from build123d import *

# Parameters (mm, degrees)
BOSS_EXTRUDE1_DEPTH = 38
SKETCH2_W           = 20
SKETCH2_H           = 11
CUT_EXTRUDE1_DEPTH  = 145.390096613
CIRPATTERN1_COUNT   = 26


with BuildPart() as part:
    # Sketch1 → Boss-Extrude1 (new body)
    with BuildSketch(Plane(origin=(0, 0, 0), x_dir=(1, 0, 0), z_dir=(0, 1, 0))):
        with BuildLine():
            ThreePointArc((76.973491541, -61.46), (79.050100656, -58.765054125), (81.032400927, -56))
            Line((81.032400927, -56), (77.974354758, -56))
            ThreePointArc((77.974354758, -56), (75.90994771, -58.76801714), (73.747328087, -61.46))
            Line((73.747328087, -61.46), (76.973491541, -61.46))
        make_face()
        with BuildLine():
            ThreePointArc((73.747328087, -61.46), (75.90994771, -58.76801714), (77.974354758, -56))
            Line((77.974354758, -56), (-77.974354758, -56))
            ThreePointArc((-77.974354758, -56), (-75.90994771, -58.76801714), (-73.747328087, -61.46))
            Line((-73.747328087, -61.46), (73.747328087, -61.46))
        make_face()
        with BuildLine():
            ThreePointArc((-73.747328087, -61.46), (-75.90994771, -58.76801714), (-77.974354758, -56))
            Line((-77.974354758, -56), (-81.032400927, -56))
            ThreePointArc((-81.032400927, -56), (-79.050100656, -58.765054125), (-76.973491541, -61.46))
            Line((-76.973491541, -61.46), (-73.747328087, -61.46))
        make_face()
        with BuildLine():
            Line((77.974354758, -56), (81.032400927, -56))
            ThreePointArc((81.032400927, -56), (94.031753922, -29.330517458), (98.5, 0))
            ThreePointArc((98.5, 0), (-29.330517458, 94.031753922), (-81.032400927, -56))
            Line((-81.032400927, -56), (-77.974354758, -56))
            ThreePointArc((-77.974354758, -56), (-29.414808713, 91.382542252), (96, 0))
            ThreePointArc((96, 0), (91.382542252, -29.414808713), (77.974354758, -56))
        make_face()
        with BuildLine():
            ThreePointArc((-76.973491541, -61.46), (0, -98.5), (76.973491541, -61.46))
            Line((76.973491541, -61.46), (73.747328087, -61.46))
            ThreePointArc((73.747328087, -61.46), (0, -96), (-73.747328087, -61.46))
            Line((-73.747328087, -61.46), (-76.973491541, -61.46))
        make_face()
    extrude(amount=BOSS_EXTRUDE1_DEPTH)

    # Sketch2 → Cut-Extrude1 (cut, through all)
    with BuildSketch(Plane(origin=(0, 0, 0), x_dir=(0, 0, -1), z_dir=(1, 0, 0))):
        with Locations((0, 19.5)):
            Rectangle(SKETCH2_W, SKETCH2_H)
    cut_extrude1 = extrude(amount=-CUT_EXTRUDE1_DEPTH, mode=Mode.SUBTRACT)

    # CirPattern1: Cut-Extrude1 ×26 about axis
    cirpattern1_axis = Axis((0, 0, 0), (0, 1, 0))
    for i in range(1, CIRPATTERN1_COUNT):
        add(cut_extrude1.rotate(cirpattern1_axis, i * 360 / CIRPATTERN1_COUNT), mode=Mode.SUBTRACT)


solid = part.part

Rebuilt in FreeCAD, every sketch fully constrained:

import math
import FreeCAD as App
import Part
import Sketcher


def add_polygon(sketch, points):
    """Adds a closed chain of lines whose ends are joined by coincident constraints."""
    first, n = sketch.GeometryCount, len(points)
    for a, b in zip(points, points[1:] + points[:1]):
        sketch.addGeometry(Part.LineSegment(App.Vector(*a, 0), App.Vector(*b, 0)), False)
    for i in range(n):
        sketch.addConstraint(Sketcher.Constraint("Coincident", first + i, 2, first + (i + 1) % n, 1))

doc = App.newDocument("Part")
params = doc.addObject("Spreadsheet::Sheet", "Params")
for row, (alias, value) in enumerate([
    ("sketch1_radius", "96 mm"),
    ("sketch1_radius2", "98.5 mm"),
    ("pad1_length", "38 mm"),
    ("sketch2_width", "11 mm"),
    ("sketch2_height", "20 mm"),
], start=1):
    params.set(f"A{row}", alias)
    params.set(f"B{row}", "=" + value)
    params.setAlias(f"B{row}", alias)

body = doc.addObject("PartDesign::Body", "Body")

sketch1 = body.newObject("Sketcher::SketchObject", "Sketch")
sketch1.AttachmentSupport = (doc.getObject("XZ_Plane"), [""])
sketch1.MapMode = "FlatFace"
sketch1.addGeometry([
    Part.ArcOfCircle(Part.Circle(App.Vector(0, 0, 0), App.Vector(0, 0, 1), 98), math.radians(34.65), math.radians(38.61)),
    Part.ArcOfCircle(Part.Circle(App.Vector(0, 0, 0), App.Vector(0, 0, 1), 98), math.radians(0), math.radians(35)),
    Part.ArcOfCircle(Part.Circle(App.Vector(0, 0, 0), App.Vector(0, 0, 1), 98), math.radians(145), math.radians(360)),
    Part.ArcOfCircle(Part.Circle(App.Vector(0, 0, 0), App.Vector(0, 0, 1), 98), math.radians(141.39), math.radians(145.35)),
    Part.ArcOfCircle(Part.Circle(App.Vector(0, 0, 0), App.Vector(0, 0, 1), 98), math.radians(39), math.radians(141)),
    Part.LineSegment(App.Vector(-74, 61, 0), App.Vector(74, 61, 0)),
    Part.ArcOfCircle(Part.Circle(App.Vector(0, 0, 0), App.Vector(0, 0, 1), 96), math.radians(40), math.radians(140)),
    Part.LineSegment(App.Vector(78, 56, 0), App.Vector(-78, 56, 0)),
    Part.ArcOfCircle(Part.Circle(App.Vector(0, 0, 0), App.Vector(0, 0, 1), 96), math.radians(144), math.radians(360)),
    Part.ArcOfCircle(Part.Circle(App.Vector(0, 0, 0), App.Vector(0, 0, 1), 96), math.radians(0), math.radians(36)),
], False)
sketch1.addConstraint([
    Sketcher.Constraint("Tangent", 0, 1, 1, 2),
    Sketcher.Constraint("Tangent", 1, 1, 2, 2),
    Sketcher.Constraint("Tangent", 2, 1, 3, 2),
    Sketcher.Constraint("Tangent", 3, 1, 4, 2),
    Sketcher.Constraint("Tangent", 4, 1, 0, 2),
    Sketcher.Constraint("Coincident", 5, 1, 6, 2),
    Sketcher.Constraint("Coincident", 6, 1, 5, 2),
    Sketcher.Constraint("Coincident", 7, 2, 8, 1),
    Sketcher.Constraint("Tangent", 8, 2, 9, 1),
    Sketcher.Constraint("Coincident", 9, 2, 7, 1),
    Sketcher.Constraint("Horizontal", 5),
    Sketcher.Constraint("Horizontal", 7),
    Sketcher.Constraint("Coincident", 0, 3, -1, 1),
    Sketcher.Constraint("Coincident", 2, 3, -1, 1),
    Sketcher.Constraint("Coincident", 6, 3, -1, 1),
    Sketcher.Constraint("Coincident", 8, 3, -1, 1),
    Sketcher.Constraint("Equal", 6, 8),
    Sketcher.Constraint("Equal", 8, 9),
    Sketcher.Constraint("PointOnObject", 1, 1, -1),
    Sketcher.Constraint("PointOnObject", 8, 2, -1),
    Sketcher.Constraint("Horizontal", 0, 1, 2, 1),
    Sketcher.Constraint("Horizontal", 3, 1, 4, 1),
    Sketcher.Constraint("Horizontal", 4, 1, 5, 1),
    Sketcher.Constraint("Horizontal", 2, 1, 7, 2),
    Sketcher.Constraint("Radius", 6, 96.0),
    Sketcher.Constraint("Radius", 0, 98.5),
    Sketcher.Constraint("DistanceY", -1, 1, 0, 1, 56.0),
    Sketcher.Constraint("DistanceY", -1, 1, 3, 1, 61.46),
])
sketch1.setExpression("Constraints[24]", "Params.sketch1_radius")
sketch1.setExpression("Constraints[25]", "Params.sketch1_radius2")
pad1 = body.newObject("PartDesign::Pad", "Pad")
pad1.Profile = sketch1
pad1.setExpression("Length", "Params.pad1_length")
pad1.Reversed = True

sketch2 = body.newObject("Sketcher::SketchObject", "Sketch001")
sketch2.AttachmentSupport = (doc.getObject("YZ_Plane"), [""])
sketch2.MapMode = "FlatFace"
add_polygon(sketch2, [(25, 10), (14, 10), (14, -10), (25, -10)])
sketch2.addConstraint([
    Sketcher.Constraint("Horizontal", 0),
    Sketcher.Constraint("Vertical", 1),
    Sketcher.Constraint("Horizontal", 2),
    Sketcher.Constraint("Vertical", 3),
    Sketcher.Constraint("DistanceX", 0, 2, 0, 1, 11.0),
    Sketcher.Constraint("DistanceY", 1, 2, 1, 1, 20.0),
    Sketcher.Constraint("DistanceX", -1, 1, 0, 2, 14.0),
    Sketcher.Constraint("DistanceY", -1, 1, 0, 2, 10.0),
])
sketch2.setExpression("Constraints[8]", "Params.sketch2_width")
sketch2.setExpression("Constraints[9]", "Params.sketch2_height")
pocket1 = body.newObject("PartDesign::Pocket", "Pocket")
pocket1.Profile = sketch2
pocket1.Type = "ThroughAll"
doc.recompute()

polarpattern = body.newObject("PartDesign::PolarPattern", "PolarPattern")
polarpattern.Originals = [pocket1]
polarpattern.Axis = (doc.getObject("Y_Axis"), [""])
polarpattern.Angle = 360
polarpattern.Occurrences = 26
body.Tip = polarpattern

doc.recompute()
